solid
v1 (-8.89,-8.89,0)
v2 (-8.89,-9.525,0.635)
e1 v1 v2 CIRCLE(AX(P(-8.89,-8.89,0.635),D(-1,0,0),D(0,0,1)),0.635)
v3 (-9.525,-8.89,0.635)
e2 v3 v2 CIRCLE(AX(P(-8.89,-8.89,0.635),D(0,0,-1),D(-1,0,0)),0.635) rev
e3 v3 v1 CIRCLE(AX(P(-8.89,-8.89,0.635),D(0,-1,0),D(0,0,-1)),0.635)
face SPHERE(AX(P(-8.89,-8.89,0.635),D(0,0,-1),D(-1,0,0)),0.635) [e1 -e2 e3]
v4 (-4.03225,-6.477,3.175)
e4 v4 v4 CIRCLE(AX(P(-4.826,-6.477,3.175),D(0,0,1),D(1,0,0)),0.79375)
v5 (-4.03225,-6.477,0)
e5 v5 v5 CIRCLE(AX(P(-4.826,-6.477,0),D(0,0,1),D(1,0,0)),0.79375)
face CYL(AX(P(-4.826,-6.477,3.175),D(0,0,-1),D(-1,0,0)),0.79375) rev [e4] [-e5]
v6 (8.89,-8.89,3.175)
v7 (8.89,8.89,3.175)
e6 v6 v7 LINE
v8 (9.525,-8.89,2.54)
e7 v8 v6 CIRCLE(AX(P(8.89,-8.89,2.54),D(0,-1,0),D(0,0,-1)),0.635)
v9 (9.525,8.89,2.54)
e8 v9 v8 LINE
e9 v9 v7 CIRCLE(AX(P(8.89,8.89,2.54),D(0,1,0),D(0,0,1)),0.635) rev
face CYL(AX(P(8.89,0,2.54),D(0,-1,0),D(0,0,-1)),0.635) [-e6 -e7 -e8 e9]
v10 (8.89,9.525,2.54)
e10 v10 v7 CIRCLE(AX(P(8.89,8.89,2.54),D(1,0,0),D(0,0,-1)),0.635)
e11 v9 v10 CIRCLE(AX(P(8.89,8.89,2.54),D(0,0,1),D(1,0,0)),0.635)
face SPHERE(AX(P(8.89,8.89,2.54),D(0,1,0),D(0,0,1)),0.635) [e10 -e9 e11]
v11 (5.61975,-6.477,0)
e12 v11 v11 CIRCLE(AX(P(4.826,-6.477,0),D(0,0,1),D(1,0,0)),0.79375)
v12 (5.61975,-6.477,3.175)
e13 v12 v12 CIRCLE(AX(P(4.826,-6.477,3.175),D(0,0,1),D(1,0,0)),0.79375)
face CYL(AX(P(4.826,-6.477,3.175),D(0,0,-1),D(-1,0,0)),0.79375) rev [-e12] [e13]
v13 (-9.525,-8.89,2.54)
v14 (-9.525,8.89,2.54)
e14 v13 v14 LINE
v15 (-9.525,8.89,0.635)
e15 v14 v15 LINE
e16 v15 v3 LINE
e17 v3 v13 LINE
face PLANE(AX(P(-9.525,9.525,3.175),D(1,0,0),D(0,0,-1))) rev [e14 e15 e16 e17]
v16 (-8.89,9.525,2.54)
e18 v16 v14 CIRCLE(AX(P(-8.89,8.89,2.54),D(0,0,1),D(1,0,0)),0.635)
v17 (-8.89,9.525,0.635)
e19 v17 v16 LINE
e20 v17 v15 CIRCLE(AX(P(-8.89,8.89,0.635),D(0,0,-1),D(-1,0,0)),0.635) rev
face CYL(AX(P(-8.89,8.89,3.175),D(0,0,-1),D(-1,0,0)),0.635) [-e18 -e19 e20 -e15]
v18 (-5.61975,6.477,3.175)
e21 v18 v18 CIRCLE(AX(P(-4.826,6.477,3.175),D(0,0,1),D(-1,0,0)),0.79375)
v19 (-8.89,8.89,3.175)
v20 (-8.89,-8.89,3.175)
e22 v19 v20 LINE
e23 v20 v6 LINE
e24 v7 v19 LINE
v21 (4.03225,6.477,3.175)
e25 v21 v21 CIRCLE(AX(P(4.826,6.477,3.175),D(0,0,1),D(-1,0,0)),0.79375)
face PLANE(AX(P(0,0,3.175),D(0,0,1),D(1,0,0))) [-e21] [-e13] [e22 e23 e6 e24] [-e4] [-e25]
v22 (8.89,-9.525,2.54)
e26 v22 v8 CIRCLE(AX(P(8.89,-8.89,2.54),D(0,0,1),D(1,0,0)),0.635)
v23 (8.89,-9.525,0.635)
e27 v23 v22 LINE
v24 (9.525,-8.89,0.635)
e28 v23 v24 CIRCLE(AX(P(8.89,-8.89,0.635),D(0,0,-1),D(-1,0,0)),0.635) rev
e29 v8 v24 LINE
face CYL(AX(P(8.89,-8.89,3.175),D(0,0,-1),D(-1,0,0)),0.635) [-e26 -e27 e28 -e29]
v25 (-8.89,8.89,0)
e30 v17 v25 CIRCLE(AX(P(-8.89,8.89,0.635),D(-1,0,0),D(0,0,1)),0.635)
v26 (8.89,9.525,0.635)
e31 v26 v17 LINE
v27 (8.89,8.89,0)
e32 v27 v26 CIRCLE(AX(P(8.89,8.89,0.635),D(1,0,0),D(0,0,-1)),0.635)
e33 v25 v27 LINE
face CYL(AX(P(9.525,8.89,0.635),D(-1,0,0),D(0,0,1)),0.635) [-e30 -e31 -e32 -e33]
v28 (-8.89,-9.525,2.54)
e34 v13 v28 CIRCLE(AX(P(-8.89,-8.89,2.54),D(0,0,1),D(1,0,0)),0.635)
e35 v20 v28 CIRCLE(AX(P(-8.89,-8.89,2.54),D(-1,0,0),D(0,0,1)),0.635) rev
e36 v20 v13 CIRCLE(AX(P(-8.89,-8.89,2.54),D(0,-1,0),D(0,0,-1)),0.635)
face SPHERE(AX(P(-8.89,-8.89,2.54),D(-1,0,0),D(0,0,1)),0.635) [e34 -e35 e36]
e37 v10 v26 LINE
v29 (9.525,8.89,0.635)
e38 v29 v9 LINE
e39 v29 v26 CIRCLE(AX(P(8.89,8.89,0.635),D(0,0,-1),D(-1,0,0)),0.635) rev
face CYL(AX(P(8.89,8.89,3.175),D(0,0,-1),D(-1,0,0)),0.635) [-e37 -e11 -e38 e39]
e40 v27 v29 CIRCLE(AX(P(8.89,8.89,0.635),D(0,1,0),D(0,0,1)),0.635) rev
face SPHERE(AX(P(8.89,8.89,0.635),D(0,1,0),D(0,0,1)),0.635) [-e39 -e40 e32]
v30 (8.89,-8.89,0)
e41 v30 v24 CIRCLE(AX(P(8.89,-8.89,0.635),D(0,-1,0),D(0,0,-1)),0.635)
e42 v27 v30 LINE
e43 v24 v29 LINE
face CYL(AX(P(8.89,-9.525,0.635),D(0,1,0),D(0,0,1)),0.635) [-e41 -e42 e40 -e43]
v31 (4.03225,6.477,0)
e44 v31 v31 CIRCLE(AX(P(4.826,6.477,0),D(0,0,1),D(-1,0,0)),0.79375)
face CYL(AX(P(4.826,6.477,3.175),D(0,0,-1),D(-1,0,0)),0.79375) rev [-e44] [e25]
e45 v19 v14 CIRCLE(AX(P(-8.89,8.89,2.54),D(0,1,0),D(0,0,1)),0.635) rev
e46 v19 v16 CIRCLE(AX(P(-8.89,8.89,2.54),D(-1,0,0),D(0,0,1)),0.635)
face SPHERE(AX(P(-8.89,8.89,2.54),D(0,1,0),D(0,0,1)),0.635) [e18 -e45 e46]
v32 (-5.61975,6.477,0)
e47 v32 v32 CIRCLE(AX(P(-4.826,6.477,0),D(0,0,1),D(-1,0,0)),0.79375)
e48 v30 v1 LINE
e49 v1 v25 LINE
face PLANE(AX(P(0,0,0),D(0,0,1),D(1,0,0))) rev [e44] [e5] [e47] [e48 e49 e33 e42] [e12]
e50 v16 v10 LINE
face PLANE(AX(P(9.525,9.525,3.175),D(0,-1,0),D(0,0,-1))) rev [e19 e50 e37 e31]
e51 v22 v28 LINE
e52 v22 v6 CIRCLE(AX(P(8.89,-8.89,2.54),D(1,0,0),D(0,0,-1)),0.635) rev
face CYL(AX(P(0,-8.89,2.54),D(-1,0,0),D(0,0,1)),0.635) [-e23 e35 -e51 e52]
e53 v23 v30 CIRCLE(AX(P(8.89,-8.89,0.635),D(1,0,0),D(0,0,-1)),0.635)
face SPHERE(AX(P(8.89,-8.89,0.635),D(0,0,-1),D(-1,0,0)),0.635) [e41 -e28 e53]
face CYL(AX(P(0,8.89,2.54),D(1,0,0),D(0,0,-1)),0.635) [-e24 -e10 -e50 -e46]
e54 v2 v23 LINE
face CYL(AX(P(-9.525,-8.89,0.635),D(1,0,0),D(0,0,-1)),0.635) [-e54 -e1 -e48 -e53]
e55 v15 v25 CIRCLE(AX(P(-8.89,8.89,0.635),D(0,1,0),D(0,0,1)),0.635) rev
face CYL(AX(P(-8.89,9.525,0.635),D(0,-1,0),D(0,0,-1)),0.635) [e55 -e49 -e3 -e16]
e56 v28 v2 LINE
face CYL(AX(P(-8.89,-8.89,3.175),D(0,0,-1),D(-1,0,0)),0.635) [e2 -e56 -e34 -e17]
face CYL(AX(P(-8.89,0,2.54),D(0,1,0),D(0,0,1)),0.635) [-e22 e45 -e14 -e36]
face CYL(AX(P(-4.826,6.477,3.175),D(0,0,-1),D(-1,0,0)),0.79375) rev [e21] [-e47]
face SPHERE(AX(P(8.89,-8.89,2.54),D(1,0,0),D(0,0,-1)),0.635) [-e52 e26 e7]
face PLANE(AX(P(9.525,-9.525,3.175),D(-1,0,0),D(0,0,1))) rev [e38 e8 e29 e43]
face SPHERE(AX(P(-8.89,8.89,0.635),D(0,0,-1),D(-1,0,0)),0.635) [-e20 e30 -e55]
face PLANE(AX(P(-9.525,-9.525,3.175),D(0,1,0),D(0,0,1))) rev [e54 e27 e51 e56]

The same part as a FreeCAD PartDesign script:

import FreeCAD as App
import Part
import Sketcher
Q = App.Units.Quantity


def edges_at(feature, points):
    """Names of the edges that pass closest to the given points."""
    edges = feature.Shape.Edges
    near = lambda p: min(range(len(edges)), key=lambda i: edges[i].distToShape(Part.Vertex(*p))[0])
    return sorted({f"Edge{near(p) + 1}" for p in points})


def add_polygon(sketch, points):
    """Adds a closed chain of lines whose ends are joined by coincident constraints."""
    first, n = sketch.GeometryCount, len(points)
    for a, b in zip(points, points[1:] + points[:1]):
        sketch.addGeometry(Part.LineSegment(App.Vector(*a, 0), App.Vector(*b, 0)), False)
    for i in range(n):
        sketch.addConstraint(Sketcher.Constraint("Coincident", first + i, 2, first + (i + 1) % n, 1))

doc = App.newDocument("Part")
body = doc.addObject("PartDesign::Body", "Body")

sketch1 = doc.addObject("Sketcher::SketchObject", "Sketch")
body.addObject(sketch1)
sketch1.AttachmentSupport = (doc.XY_Plane, [""])
sketch1.MapMode = "FlatFace"
add_polygon(sketch1, [(-9.525, 9.525), (-9.525, -9.525), (9.525, -9.525), (9.525, 9.525)])
sketch1.addGeometry(Part.Circle(App.Vector(-4.826, -6.477, 0), App.Vector(0, 0, 1), 0.79375), False)
sketch1.addGeometry(Part.Circle(App.Vector(4.826, -6.477, 0), App.Vector(0, 0, 1), 0.79375), False)
sketch1.addGeometry(Part.Circle(App.Vector(-4.826, 6.477, 0), App.Vector(0, 0, 1), 0.79375), False)
sketch1.addGeometry(Part.Circle(App.Vector(4.826, 6.477, 0), App.Vector(0, 0, 1), 0.79375), False)
sketch1.addConstraint(Sketcher.Constraint("Vertical", 0))
sketch1.addConstraint(Sketcher.Constraint("Horizontal", 1))
sketch1.addConstraint(Sketcher.Constraint("Vertical", 2))
sketch1.addConstraint(Sketcher.Constraint("Horizontal", 3))
sketch1.addConstraint(Sketcher.Constraint("Equal", 4, 5))
sketch1.addConstraint(Sketcher.Constraint("Equal", 5, 6))
sketch1.addConstraint(Sketcher.Constraint("Equal", 6, 7))
sketch1.addConstraint(Sketcher.Constraint("Symmetric", 5, 3, 6, 3, -1, 1))
sketch1.addConstraint(Sketcher.Constraint("Symmetric", 4, 3, 7, 3, -1, 1))
sketch1.addConstraint(Sketcher.Constraint("Symmetric", 0, 2, 2, 2, -1, 1))
sketch1.addConstraint(Sketcher.Constraint("Symmetric", 4, 3, 5, 3, -2))
sketch1.addConstraint(Sketcher.Constraint("Equal", 3, 0))
sketch1.addConstraint(Sketcher.Constraint("Diameter", 4, Q("0.0625 in")))
sketch1.addConstraint(Sketcher.Constraint("DistanceX", 1, 1, 1, 2, Q("0.75 in")))
sketch1.addConstraint(Sketcher.Constraint("DistanceX", 4, 3, -1, 1, Q("0.19 in")))
sketch1.addConstraint(Sketcher.Constraint("DistanceY", 4, 3, 6, 3, Q("0.51 in")))
pad1 = doc.addObject("PartDesign::Pad", "Pad")
body.addObject(pad1)
pad1.Profile = sketch1
pad1.Length = Q("0.125 in")
doc.recompute()

fillet = doc.addObject("PartDesign::Fillet", "Fillet")
body.addObject(fillet)
fillet.Base = (pad1, edges_at(pad1, [
    (0, -9.525, 3.175),
    (9.525, 0, 3.175),
    (0, 9.525, 3.175),
    (9.525, 0, 0),
    (0, -9.525, 0),
    (-9.525, 0, 0),
    (0, 9.525, 0),
    (9.525, 9.525, 1.587),
    (9.525, -9.525, 1.587),
    (-9.525, -9.525, 1.587),
    (-9.525, 9.525, 1.587),
    (-9.525, 0, 3.175),
]))
fillet.Radius = Q("0.025 in")

doc.recompute()
